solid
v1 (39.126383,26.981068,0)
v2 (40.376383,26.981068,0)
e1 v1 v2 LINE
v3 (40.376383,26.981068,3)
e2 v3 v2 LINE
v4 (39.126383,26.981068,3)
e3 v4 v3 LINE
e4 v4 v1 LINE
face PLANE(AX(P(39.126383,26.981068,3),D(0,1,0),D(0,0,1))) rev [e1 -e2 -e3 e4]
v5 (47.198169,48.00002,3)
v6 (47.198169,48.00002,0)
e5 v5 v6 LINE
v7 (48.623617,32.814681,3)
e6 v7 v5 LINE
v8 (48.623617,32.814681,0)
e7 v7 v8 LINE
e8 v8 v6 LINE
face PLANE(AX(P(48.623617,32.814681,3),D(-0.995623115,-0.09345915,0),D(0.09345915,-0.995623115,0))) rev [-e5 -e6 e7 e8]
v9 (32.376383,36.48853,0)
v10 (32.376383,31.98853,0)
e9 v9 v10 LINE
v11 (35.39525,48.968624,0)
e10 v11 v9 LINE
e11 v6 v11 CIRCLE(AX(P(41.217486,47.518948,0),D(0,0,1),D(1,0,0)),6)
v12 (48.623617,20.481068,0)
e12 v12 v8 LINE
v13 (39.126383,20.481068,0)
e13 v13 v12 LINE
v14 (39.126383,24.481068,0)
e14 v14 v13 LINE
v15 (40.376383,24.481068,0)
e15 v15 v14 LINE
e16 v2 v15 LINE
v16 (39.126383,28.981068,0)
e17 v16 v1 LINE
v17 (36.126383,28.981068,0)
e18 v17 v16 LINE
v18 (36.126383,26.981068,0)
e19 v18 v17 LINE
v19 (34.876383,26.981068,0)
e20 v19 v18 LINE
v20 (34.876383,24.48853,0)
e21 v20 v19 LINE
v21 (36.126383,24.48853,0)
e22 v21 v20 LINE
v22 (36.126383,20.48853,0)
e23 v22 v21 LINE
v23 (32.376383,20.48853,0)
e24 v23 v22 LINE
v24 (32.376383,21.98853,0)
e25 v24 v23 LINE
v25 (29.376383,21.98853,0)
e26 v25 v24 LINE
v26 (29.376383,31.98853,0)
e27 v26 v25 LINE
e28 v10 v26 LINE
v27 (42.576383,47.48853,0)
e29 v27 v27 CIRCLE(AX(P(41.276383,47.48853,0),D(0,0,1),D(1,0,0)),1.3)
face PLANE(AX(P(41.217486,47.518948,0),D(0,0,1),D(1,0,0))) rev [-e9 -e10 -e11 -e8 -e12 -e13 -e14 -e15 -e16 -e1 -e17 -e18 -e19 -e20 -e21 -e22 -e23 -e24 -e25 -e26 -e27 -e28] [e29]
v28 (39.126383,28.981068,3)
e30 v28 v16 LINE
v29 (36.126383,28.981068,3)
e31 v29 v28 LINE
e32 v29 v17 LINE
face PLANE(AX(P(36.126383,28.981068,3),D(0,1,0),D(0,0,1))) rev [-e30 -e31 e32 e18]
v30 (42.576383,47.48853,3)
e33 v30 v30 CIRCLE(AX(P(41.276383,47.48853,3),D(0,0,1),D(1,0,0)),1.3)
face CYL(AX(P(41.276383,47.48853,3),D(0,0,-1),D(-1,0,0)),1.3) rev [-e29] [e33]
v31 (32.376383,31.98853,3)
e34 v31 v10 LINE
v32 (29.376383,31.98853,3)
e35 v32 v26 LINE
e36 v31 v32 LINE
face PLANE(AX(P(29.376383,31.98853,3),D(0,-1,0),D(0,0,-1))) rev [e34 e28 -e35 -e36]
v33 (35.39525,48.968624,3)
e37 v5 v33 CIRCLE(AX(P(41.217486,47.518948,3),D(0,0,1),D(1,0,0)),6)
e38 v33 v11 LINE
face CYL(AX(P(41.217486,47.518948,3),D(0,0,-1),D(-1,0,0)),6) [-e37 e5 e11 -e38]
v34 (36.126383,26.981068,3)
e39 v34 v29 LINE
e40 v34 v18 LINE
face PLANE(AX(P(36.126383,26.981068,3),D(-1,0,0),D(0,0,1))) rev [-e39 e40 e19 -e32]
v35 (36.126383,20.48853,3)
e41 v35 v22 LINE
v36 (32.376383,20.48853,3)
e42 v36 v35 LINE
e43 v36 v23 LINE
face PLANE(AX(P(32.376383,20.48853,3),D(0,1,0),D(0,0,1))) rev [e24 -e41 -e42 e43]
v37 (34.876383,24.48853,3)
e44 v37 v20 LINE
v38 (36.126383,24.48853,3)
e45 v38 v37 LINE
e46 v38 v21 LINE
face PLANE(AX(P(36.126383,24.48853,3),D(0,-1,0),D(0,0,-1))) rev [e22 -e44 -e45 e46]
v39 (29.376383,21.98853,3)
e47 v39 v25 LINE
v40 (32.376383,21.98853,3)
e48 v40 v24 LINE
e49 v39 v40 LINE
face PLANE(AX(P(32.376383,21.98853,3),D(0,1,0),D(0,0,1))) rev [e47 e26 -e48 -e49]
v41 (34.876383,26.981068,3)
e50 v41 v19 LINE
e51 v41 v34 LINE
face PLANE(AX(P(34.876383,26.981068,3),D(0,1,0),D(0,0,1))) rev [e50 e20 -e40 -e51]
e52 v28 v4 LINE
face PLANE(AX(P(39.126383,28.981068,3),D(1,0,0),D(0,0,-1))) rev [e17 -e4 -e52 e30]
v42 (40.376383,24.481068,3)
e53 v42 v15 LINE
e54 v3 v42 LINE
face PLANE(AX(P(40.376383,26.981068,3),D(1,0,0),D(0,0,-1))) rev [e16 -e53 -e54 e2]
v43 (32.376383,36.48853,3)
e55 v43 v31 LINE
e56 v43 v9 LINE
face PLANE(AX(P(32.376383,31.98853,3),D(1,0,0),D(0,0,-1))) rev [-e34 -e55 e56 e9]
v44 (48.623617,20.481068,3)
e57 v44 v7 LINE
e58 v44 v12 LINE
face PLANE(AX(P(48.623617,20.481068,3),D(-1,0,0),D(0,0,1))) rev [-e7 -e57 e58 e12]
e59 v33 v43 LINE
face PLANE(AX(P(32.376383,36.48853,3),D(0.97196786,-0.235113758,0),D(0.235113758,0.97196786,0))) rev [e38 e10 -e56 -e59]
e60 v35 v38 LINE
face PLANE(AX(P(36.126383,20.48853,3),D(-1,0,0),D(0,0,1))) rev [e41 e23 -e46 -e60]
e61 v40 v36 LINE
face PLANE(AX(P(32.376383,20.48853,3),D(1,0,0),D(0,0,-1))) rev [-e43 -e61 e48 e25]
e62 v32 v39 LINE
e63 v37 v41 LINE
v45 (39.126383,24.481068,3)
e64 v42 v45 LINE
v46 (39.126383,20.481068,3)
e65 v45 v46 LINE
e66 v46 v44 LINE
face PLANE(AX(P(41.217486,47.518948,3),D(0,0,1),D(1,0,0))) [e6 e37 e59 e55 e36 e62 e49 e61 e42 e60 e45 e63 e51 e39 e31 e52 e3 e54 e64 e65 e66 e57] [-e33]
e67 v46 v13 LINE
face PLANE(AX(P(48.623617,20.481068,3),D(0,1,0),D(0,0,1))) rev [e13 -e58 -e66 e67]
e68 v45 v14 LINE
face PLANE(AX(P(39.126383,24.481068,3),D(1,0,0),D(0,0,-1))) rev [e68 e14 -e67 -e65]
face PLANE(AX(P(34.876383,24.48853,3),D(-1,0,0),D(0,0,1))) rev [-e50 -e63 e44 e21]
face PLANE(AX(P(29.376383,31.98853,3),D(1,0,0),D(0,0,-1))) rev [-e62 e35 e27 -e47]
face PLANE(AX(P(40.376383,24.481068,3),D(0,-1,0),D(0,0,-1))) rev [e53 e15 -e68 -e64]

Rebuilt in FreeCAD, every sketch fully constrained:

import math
import FreeCAD as App
import Part
import Sketcher

doc = App.newDocument("Part")
body = doc.addObject("PartDesign::Body", "Body")

sketch1 = doc.addObject("Sketcher::SketchObject", "Sketch")
body.addObject(sketch1)
sketch1.AttachmentSupport = (doc.XY_Plane, [""])
sketch1.MapMode = "FlatFace"
sketch1.addGeometry(Part.LineSegment(App.Vector(39.126383, 20.481068, 0), App.Vector(48.623617, 20.481068, 0)), False)
sketch1.addGeometry(Part.LineSegment(App.Vector(48.623617, 20.481068, 0), App.Vector(48.623617, 32.814681, 0)), False)
sketch1.addGeometry(Part.LineSegment(App.Vector(48.623617, 32.814681, 0), App.Vector(47.198169, 48.00002, 0)), False)
sketch1.addGeometry(Part.ArcOfCircle(Part.Circle(App.Vector(41.217486, 47.518948, 0), App.Vector(0, 0, 1), 6), math.radians(4.598835), math.radians(166.018265)), False)
sketch1.addGeometry(Part.LineSegment(App.Vector(35.39525, 48.968624, 0), App.Vector(32.376383, 36.48853, 0)), False)
sketch1.addGeometry(Part.LineSegment(App.Vector(32.376383, 36.48853, 0), App.Vector(32.376383, 31.98853, 0)), False)
sketch1.addGeometry(Part.LineSegment(App.Vector(32.376383, 31.98853, 0), App.Vector(29.376383, 31.98853, 0)), False)
sketch1.addGeometry(Part.LineSegment(App.Vector(29.376383, 31.98853, 0), App.Vector(29.376383, 21.98853, 0)), False)
sketch1.addGeometry(Part.LineSegment(App.Vector(29.376383, 21.98853, 0), App.Vector(32.376383, 21.98853, 0)), False)
sketch1.addGeometry(Part.LineSegment(App.Vector(32.376383, 21.98853, 0), App.Vector(32.376383, 20.48853, 0)), False)
sketch1.addGeometry(Part.LineSegment(App.Vector(32.376383, 20.48853, 0), App.Vector(36.126383, 20.48853, 0)), False)
sketch1.addGeometry(Part.LineSegment(App.Vector(36.126383, 20.48853, 0), App.Vector(36.126383, 24.48853, 0)), False)
sketch1.addGeometry(Part.LineSegment(App.Vector(36.126383, 24.48853, 0), App.Vector(34.876383, 24.48853, 0)), False)
sketch1.addGeometry(Part.LineSegment(App.Vector(34.876383, 24.48853, 0), App.Vector(34.876383, 26.981068, 0)), False)
sketch1.addGeometry(Part.LineSegment(App.Vector(34.876383, 26.981068, 0), App.Vector(36.126383, 26.981068, 0)), False)
sketch1.addGeometry(Part.LineSegment(App.Vector(36.126383, 26.981068, 0), App.Vector(36.126383, 28.981068, 0)), False)
sketch1.addGeometry(Part.LineSegment(App.Vector(36.126383, 28.981068, 0), App.Vector(39.126383, 28.981068, 0)), False)
sketch1.addGeometry(Part.LineSegment(App.Vector(39.126383, 28.981068, 0), App.Vector(39.126383, 26.981068, 0)), False)
sketch1.addGeometry(Part.LineSegment(App.Vector(39.126383, 26.981068, 0), App.Vector(40.376383, 26.981068, 0)), False)
sketch1.addGeometry(Part.LineSegment(App.Vector(40.376383, 26.981068, 0), App.Vector(40.376383, 24.481068, 0)), False)
sketch1.addGeometry(Part.LineSegment(App.Vector(40.376383, 24.481068, 0), App.Vector(39.126383, 24.481068, 0)), False)
sketch1.addGeometry(Part.LineSegment(App.Vector(39.126383, 24.481068, 0), App.Vector(39.126383, 20.481068, 0)), False)
sketch1.addGeometry(Part.Circle(App.Vector(41.276383, 47.48853, 0), App.Vector(0, 0, 1), 1.3), False)
sketch1.addConstraint(Sketcher.Constraint("Coincident", 0, 2, 1, 1))
sketch1.addConstraint(Sketcher.Constraint("Coincident", 1, 2, 2, 1))
sketch1.addConstraint(Sketcher.Constraint("Coincident", 2, 2, 3, 1))
sketch1.addConstraint(Sketcher.Constraint("Coincident", 3, 2, 4, 1))
sketch1.addConstraint(Sketcher.Constraint("Coincident", 4, 2, 5, 1))
sketch1.addConstraint(Sketcher.Constraint("Coincident", 5, 2, 6, 1))
sketch1.addConstraint(Sketcher.Constraint("Coincident", 6, 2, 7, 1))
sketch1.addConstraint(Sketcher.Constraint("Coincident", 7, 2, 8, 1))
sketch1.addConstraint(Sketcher.Constraint("Coincident", 8, 2, 9, 1))
sketch1.addConstraint(Sketcher.Constraint("Coincident", 9, 2, 10, 1))
sketch1.addConstraint(Sketcher.Constraint("Coincident", 10, 2, 11, 1))
sketch1.addConstraint(Sketcher.Constraint("Coincident", 11, 2, 12, 1))
sketch1.addConstraint(Sketcher.Constraint("Coincident", 12, 2, 13, 1))
sketch1.addConstraint(Sketcher.Constraint("Coincident", 13, 2, 14, 1))
sketch1.addConstraint(Sketcher.Constraint("Coincident", 14, 2, 15, 1))
sketch1.addConstraint(Sketcher.Constraint("Coincident", 15, 2, 16, 1))
sketch1.addConstraint(Sketcher.Constraint("Coincident", 16, 2, 17, 1))
sketch1.addConstraint(Sketcher.Constraint("Coincident", 17, 2, 18, 1))
sketch1.addConstraint(Sketcher.Constraint("Coincident", 18, 2, 19, 1))
sketch1.addConstraint(Sketcher.Constraint("Coincident", 19, 2, 20, 1))
sketch1.addConstraint(Sketcher.Constraint("Coincident", 20, 2, 21, 1))
sketch1.addConstraint(Sketcher.Constraint("Coincident", 21, 2, 0, 1))
sketch1.addConstraint(Sketcher.Constraint("Horizontal", 0))
sketch1.addConstraint(Sketcher.Constraint("Vertical", 1))
sketch1.addConstraint(Sketcher.Constraint("Vertical", 5))
sketch1.addConstraint(Sketcher.Constraint("Horizontal", 6))
sketch1.addConstraint(Sketcher.Constraint("Vertical", 7))
sketch1.addConstraint(Sketcher.Constraint("Horizontal", 8))
sketch1.addConstraint(Sketcher.Constraint("Vertical", 9))
sketch1.addConstraint(Sketcher.Constraint("Horizontal", 10))
sketch1.addConstraint(Sketcher.Constraint("Vertical", 11))
sketch1.addConstraint(Sketcher.Constraint("Horizontal", 12))
sketch1.addConstraint(Sketcher.Constraint("Vertical", 13))
sketch1.addConstraint(Sketcher.Constraint("Horizontal", 14))
sketch1.addConstraint(Sketcher.Constraint("Vertical", 15))
sketch1.addConstraint(Sketcher.Constraint("Horizontal", 16))
sketch1.addConstraint(Sketcher.Constraint("Vertical", 17))
sketch1.addConstraint(Sketcher.Constraint("Horizontal", 18))
sketch1.addConstraint(Sketcher.Constraint("Vertical", 19))
sketch1.addConstraint(Sketcher.Constraint("Horizontal", 20))
sketch1.addConstraint(Sketcher.Constraint("Vertical", 21))
sketch1.addConstraint(Sketcher.Constraint("Horizontal", 14, 2, 17, 2))
sketch1.addConstraint(Sketcher.Constraint("Vertical", 5, 2, 8, 2))
sketch1.addConstraint(Sketcher.Constraint("Vertical", 11, 2, 14, 2))
sketch1.addConstraint(Sketcher.Constraint("Vertical", 17, 2, 20, 2))
sketch1.addConstraint(Sketcher.Constraint("Equal", 8, 16))
sketch1.addConstraint(Sketcher.Constraint("Equal", 14, 18))
sketch1.addConstraint(Sketcher.Constraint("Equal", 11, 21))
sketch1.addConstraint(Sketcher.Constraint("Radius", 3, 6.0))
sketch1.addConstraint(Sketcher.Constraint("Diameter", 22, 2.6))
sketch1.addConstraint(Sketcher.Constraint("DistanceX", 6, 2, 6, 1, 3.0))
sketch1.addConstraint(Sketcher.Constraint("DistanceY", 7, 2, 7, 1, 10.0))
sketch1.addConstraint(Sketcher.Constraint("DistanceY", 11, 1, 11, 2, 4.0))
sketch1.addConstraint(Sketcher.Constraint("DistanceY", 15, 1, 15, 2, 2.0))
sketch1.addConstraint(Sketcher.Constraint("DistanceY", 5, 2, 5, 1, 4.5))
sketch1.addConstraint(Sketcher.Constraint("DistanceY", 9, 2, 9, 1, 1.5))
sketch1.addConstraint(Sketcher.Constraint("DistanceY", 19, 2, 19, 1, 2.5))
sketch1.addConstraint(Sketcher.Constraint("DistanceY", 4, 2, 22, 3, 11.0))
sketch1.addConstraint(Sketcher.Constraint("DistanceX", 10, 1, 10, 2, 3.75))
sketch1.addConstraint(Sketcher.Constraint("DistanceX", 12, 2, 12, 1, 1.25))
sketch1.addConstraint(Sketcher.Constraint("DistanceX", 4, 2, 22, 3, 8.9))
sketch1.addConstraint(Sketcher.Constraint("DistanceX", 0, 1, 0, 2, 9.497235))
sketch1.addConstraint(Sketcher.Constraint("DistanceY", 1, 1, 1, 2, 12.333613))
sketch1.addConstraint(Sketcher.Constraint("DistanceY", 13, 1, 13, 2, 2.492538))
sketch1.addConstraint(Sketcher.Constraint("DistanceY", -1, 1, 3, 3, 47.518948))
sketch1.addConstraint(Sketcher.Constraint("DistanceY", -1, 1, 22, 3, 47.48853))
sketch1.addConstraint(Sketcher.Constraint("DistanceX", -1, 1, 2, 2, 47.198169))
sketch1.addConstraint(Sketcher.Constraint("DistanceY", -1, 1, 2, 2, 48.00002))
sketch1.addConstraint(Sketcher.Constraint("DistanceX", -1, 1, 3, 2, 35.39525))
sketch1.addConstraint(Sketcher.Constraint("DistanceX", 3, 3, 0, 2, 7.406131))
pad1 = doc.addObject("PartDesign::Pad", "Pad")
body.addObject(pad1)
pad1.Profile = sketch1
pad1.Length = 3

doc.recompute()
